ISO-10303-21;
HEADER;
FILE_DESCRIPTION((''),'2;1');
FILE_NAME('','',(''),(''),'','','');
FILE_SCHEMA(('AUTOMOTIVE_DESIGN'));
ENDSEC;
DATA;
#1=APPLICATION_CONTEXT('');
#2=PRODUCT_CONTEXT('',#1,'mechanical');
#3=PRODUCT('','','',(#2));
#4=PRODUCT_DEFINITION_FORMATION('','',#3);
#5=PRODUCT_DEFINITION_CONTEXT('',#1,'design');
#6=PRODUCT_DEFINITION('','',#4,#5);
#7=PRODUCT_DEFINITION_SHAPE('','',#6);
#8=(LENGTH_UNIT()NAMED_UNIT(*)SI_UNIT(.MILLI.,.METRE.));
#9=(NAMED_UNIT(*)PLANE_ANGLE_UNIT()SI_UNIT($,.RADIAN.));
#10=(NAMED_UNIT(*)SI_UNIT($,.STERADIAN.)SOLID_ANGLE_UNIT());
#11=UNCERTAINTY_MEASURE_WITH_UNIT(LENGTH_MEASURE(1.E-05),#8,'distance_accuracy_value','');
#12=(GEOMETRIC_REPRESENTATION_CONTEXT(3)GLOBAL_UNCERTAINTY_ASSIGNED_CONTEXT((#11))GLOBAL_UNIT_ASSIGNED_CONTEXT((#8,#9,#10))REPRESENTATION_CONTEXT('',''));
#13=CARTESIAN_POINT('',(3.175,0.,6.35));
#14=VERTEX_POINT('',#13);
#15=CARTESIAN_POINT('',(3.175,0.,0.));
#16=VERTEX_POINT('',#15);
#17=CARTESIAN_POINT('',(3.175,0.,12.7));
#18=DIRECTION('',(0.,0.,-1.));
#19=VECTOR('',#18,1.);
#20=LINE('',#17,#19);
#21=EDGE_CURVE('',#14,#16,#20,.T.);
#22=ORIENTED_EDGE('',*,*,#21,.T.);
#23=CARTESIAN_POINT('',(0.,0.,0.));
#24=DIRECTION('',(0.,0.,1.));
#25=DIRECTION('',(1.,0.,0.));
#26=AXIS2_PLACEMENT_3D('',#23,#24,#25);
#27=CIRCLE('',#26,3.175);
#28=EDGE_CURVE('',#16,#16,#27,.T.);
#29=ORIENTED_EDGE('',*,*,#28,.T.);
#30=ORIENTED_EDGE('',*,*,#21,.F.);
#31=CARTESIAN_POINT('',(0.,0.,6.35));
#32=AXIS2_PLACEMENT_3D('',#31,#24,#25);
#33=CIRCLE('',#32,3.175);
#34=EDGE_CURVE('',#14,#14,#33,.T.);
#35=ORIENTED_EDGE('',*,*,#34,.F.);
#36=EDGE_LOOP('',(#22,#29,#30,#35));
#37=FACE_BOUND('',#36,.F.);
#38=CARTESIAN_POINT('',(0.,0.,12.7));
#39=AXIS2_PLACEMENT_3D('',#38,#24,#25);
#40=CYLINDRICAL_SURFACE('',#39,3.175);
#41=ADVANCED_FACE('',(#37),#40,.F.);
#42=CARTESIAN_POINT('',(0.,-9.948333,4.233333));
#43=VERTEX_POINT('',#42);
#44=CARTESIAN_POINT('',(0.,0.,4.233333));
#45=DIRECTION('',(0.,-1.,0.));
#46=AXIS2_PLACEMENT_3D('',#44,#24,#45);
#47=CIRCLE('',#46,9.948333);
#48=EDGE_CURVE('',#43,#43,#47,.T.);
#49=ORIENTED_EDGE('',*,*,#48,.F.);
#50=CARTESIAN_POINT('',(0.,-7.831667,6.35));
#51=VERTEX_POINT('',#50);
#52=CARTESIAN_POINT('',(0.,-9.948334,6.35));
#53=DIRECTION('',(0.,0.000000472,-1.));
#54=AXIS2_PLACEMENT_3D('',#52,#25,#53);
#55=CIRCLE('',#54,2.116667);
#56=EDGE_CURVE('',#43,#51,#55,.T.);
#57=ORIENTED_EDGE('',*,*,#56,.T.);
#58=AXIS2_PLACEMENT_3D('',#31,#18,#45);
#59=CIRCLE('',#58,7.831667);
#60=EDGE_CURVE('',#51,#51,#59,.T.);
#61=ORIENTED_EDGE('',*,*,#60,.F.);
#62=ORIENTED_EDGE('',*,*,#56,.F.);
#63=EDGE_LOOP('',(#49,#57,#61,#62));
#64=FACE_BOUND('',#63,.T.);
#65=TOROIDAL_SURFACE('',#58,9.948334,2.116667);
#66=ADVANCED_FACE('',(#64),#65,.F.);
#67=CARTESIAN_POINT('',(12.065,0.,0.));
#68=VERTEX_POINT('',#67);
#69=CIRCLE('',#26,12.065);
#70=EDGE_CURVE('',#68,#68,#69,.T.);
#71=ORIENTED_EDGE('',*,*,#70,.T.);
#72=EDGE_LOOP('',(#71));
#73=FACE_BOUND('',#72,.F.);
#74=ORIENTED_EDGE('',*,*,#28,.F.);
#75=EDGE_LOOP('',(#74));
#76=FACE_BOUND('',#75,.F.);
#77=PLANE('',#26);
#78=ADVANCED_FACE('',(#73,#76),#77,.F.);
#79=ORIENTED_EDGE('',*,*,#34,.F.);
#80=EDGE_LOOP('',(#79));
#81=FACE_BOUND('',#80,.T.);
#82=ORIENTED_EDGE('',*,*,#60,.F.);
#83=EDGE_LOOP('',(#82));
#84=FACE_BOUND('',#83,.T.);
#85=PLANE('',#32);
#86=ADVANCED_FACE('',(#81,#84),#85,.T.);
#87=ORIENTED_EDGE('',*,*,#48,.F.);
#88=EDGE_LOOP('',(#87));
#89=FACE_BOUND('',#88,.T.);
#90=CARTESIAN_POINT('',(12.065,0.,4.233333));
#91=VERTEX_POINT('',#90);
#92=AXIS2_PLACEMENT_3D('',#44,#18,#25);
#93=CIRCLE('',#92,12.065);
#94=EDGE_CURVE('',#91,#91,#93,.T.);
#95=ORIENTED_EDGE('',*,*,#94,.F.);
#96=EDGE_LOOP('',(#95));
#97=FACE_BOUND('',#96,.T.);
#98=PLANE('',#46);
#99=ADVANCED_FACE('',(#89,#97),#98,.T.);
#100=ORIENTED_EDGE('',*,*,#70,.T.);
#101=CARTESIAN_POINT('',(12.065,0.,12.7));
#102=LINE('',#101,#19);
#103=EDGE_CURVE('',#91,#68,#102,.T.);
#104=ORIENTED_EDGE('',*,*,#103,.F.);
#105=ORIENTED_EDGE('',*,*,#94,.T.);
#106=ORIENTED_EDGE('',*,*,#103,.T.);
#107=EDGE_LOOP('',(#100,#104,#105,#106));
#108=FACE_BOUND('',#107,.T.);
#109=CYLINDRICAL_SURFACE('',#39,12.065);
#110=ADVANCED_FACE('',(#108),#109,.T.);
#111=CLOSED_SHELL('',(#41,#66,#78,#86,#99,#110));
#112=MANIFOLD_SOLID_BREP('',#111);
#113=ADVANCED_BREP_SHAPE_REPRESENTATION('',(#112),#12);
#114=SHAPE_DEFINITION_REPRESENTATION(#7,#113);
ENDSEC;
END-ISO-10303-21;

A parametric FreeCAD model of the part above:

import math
import FreeCAD as App
import Part
import Sketcher

V = App.Vector
Q = App.Units.Quantity

doc = App.newDocument("Part")
body = doc.addObject("PartDesign::Body", "Body")

# Sketch on XY plane
sketch1 = body.newObject("Sketcher::SketchObject", "Sketch")
sketch1.AttachmentSupport = (doc.getObject("XY_Plane"), [""])
sketch1.MapMode = "FlatFace"
sketch1.addGeometry(Part.Circle(V(0, 0, 0), V(0, 0, 1), 16), False)
sketch1.addConstraint([
    Sketcher.Constraint("Coincident", 0, 3, -1, 1),
    Sketcher.Constraint("Diameter", 0, Q("1.25 in")),
])
pad1 = body.newObject("PartDesign::Pad", "Pad")
pad1.Profile = sketch1
pad1.Length = Q("0.5 in")

# Sketch on YZ plane
sketch2 = body.newObject("Sketcher::SketchObject", "Sketch001")
sketch2.AttachmentSupport = (doc.getObject("YZ_Plane"), [""])
sketch2.MapMode = "FlatFace"
sketch2.addGeometry([
    Part.LineSegment(V(-12.1, 8.5, 0), V(-12.1, 4.2, 0)),
    Part.LineSegment(V(-12.1, 4.2, 0), V(-9.9, 4.2, 0)),
    Part.ArcOfCircle(Part.Circle(V(-9.9, 6.3, 0), V(0, 0, 1), 2.1), math.radians(-90), math.radians(90)),
    Part.LineSegment(V(-9.9, 8.5, 0), V(-12.1, 8.5, 0)),
], False)
sketch2.addConstraint([
    Sketcher.Constraint("Coincident", 0, 2, 1, 1),
    Sketcher.Constraint("Tangent", 1, 2, 2, 1),
    Sketcher.Constraint("Tangent", 2, 2, 3, 1),
    Sketcher.Constraint("Coincident", 3, 2, 0, 1),
    Sketcher.Constraint("Vertical", 0),
    Sketcher.Constraint("Horizontal", 1),
    Sketcher.Constraint("Horizontal", 3),
    Sketcher.Constraint("DistanceY", -1, 1, 2, 3, Q("0.25 in")),
    Sketcher.Constraint("DistanceX", 0, 2, -1, 1, Q("0.475 in")),
    Sketcher.Constraint("Radius", 2, Q("2.116667 mm")),
    Sketcher.Constraint("DistanceX", 1, 1, 1, 2, Q("2.116667 mm")),
])
groove = body.newObject("PartDesign::Groove", "Groove")
groove.Profile = sketch2
groove.ReferenceAxis = (sketch2, ["V_Axis"])
groove.Angle = 360

# Sketch on XY plane
sketch3 = body.newObject("Sketcher::SketchObject", "Sketch002")
sketch3.AttachmentSupport = (doc.getObject("XY_Plane"), [""])
sketch3.MapMode = "FlatFace"
sketch3.AttachmentOffset = App.Placement(V(0, 0, 0.5 * 25.4), App.Rotation())
sketch3.addGeometry(Part.Circle(V(0, 0, 0), V(0, 0, 1), 3.2), False)
sketch3.addConstraint([
    Sketcher.Constraint("Coincident", 0, 3, -1, 1),
    Sketcher.Constraint("Diameter", 0, Q("0.25 in")),
])
pocket1 = body.newObject("PartDesign::Pocket", "Pocket")
pocket1.Profile = sketch3
pocket1.Type = "ThroughAll"

# Sketch on XY plane
sketch4 = body.newObject("Sketcher::SketchObject", "Sketch003")
sketch4.AttachmentSupport = (doc.getObject("XY_Plane"), [""])
sketch4.MapMode = "FlatFace"
sketch4.AttachmentOffset = App.Placement(V(0, 0, 0.5 * 25.4), App.Rotation())
sketch4.addGeometry([
    Part.Circle(V(0, 0, 0), V(0, 0, 1), 20),
    Part.Circle(V(0, 0, 0), V(0, 0, 1), 12),
], False)
sketch4.addConstraint([
    Sketcher.Constraint("Coincident", 0, 3, -1, 1),
    Sketcher.Constraint("Coincident", 1, 3, -1, 1),
    Sketcher.Constraint("Diameter", 1, Q("0.95 in")),
    Sketcher.Constraint("Diameter", 0, Q("40.049432 mm")),
])
pocket2 = body.newObject("PartDesign::Pocket", "Pocket001")
pocket2.Profile = sketch4
pocket2.Type = "ThroughAll"

# Sketch on XY plane
sketch5 = body.newObject("Sketcher::SketchObject", "Sketch004")
sketch5.AttachmentSupport = (doc.getObject("XY_Plane"), [""])
sketch5.MapMode = "FlatFace"
sketch5.AttachmentOffset = App.Placement(V(0, 0, 0.5 * 25.4), App.Rotation())
sketch5.addGeometry([
    Part.Circle(V(0, 0, 0), V(0, 0, 1), 20.4),
    Part.Circle(V(0, 0, 0), V(0, 0, 1), 1.8),
], False)
sketch5.addConstraint([
    Sketcher.Constraint("Coincident", 0, 3, -1, 1),
    Sketcher.Constraint("Coincident", 1, 3, -1, 1),
    Sketcher.Constraint("Diameter", 0, Q("40.899784 mm")),
    Sketcher.Constraint("Diameter", 1, Q("3.538126 mm")),
])
pocket3 = body.newObject("PartDesign::Pocket", "Pocket002")
pocket3.Profile = sketch5
pocket3.Length = Q("0.25 in")

doc.recompute()
